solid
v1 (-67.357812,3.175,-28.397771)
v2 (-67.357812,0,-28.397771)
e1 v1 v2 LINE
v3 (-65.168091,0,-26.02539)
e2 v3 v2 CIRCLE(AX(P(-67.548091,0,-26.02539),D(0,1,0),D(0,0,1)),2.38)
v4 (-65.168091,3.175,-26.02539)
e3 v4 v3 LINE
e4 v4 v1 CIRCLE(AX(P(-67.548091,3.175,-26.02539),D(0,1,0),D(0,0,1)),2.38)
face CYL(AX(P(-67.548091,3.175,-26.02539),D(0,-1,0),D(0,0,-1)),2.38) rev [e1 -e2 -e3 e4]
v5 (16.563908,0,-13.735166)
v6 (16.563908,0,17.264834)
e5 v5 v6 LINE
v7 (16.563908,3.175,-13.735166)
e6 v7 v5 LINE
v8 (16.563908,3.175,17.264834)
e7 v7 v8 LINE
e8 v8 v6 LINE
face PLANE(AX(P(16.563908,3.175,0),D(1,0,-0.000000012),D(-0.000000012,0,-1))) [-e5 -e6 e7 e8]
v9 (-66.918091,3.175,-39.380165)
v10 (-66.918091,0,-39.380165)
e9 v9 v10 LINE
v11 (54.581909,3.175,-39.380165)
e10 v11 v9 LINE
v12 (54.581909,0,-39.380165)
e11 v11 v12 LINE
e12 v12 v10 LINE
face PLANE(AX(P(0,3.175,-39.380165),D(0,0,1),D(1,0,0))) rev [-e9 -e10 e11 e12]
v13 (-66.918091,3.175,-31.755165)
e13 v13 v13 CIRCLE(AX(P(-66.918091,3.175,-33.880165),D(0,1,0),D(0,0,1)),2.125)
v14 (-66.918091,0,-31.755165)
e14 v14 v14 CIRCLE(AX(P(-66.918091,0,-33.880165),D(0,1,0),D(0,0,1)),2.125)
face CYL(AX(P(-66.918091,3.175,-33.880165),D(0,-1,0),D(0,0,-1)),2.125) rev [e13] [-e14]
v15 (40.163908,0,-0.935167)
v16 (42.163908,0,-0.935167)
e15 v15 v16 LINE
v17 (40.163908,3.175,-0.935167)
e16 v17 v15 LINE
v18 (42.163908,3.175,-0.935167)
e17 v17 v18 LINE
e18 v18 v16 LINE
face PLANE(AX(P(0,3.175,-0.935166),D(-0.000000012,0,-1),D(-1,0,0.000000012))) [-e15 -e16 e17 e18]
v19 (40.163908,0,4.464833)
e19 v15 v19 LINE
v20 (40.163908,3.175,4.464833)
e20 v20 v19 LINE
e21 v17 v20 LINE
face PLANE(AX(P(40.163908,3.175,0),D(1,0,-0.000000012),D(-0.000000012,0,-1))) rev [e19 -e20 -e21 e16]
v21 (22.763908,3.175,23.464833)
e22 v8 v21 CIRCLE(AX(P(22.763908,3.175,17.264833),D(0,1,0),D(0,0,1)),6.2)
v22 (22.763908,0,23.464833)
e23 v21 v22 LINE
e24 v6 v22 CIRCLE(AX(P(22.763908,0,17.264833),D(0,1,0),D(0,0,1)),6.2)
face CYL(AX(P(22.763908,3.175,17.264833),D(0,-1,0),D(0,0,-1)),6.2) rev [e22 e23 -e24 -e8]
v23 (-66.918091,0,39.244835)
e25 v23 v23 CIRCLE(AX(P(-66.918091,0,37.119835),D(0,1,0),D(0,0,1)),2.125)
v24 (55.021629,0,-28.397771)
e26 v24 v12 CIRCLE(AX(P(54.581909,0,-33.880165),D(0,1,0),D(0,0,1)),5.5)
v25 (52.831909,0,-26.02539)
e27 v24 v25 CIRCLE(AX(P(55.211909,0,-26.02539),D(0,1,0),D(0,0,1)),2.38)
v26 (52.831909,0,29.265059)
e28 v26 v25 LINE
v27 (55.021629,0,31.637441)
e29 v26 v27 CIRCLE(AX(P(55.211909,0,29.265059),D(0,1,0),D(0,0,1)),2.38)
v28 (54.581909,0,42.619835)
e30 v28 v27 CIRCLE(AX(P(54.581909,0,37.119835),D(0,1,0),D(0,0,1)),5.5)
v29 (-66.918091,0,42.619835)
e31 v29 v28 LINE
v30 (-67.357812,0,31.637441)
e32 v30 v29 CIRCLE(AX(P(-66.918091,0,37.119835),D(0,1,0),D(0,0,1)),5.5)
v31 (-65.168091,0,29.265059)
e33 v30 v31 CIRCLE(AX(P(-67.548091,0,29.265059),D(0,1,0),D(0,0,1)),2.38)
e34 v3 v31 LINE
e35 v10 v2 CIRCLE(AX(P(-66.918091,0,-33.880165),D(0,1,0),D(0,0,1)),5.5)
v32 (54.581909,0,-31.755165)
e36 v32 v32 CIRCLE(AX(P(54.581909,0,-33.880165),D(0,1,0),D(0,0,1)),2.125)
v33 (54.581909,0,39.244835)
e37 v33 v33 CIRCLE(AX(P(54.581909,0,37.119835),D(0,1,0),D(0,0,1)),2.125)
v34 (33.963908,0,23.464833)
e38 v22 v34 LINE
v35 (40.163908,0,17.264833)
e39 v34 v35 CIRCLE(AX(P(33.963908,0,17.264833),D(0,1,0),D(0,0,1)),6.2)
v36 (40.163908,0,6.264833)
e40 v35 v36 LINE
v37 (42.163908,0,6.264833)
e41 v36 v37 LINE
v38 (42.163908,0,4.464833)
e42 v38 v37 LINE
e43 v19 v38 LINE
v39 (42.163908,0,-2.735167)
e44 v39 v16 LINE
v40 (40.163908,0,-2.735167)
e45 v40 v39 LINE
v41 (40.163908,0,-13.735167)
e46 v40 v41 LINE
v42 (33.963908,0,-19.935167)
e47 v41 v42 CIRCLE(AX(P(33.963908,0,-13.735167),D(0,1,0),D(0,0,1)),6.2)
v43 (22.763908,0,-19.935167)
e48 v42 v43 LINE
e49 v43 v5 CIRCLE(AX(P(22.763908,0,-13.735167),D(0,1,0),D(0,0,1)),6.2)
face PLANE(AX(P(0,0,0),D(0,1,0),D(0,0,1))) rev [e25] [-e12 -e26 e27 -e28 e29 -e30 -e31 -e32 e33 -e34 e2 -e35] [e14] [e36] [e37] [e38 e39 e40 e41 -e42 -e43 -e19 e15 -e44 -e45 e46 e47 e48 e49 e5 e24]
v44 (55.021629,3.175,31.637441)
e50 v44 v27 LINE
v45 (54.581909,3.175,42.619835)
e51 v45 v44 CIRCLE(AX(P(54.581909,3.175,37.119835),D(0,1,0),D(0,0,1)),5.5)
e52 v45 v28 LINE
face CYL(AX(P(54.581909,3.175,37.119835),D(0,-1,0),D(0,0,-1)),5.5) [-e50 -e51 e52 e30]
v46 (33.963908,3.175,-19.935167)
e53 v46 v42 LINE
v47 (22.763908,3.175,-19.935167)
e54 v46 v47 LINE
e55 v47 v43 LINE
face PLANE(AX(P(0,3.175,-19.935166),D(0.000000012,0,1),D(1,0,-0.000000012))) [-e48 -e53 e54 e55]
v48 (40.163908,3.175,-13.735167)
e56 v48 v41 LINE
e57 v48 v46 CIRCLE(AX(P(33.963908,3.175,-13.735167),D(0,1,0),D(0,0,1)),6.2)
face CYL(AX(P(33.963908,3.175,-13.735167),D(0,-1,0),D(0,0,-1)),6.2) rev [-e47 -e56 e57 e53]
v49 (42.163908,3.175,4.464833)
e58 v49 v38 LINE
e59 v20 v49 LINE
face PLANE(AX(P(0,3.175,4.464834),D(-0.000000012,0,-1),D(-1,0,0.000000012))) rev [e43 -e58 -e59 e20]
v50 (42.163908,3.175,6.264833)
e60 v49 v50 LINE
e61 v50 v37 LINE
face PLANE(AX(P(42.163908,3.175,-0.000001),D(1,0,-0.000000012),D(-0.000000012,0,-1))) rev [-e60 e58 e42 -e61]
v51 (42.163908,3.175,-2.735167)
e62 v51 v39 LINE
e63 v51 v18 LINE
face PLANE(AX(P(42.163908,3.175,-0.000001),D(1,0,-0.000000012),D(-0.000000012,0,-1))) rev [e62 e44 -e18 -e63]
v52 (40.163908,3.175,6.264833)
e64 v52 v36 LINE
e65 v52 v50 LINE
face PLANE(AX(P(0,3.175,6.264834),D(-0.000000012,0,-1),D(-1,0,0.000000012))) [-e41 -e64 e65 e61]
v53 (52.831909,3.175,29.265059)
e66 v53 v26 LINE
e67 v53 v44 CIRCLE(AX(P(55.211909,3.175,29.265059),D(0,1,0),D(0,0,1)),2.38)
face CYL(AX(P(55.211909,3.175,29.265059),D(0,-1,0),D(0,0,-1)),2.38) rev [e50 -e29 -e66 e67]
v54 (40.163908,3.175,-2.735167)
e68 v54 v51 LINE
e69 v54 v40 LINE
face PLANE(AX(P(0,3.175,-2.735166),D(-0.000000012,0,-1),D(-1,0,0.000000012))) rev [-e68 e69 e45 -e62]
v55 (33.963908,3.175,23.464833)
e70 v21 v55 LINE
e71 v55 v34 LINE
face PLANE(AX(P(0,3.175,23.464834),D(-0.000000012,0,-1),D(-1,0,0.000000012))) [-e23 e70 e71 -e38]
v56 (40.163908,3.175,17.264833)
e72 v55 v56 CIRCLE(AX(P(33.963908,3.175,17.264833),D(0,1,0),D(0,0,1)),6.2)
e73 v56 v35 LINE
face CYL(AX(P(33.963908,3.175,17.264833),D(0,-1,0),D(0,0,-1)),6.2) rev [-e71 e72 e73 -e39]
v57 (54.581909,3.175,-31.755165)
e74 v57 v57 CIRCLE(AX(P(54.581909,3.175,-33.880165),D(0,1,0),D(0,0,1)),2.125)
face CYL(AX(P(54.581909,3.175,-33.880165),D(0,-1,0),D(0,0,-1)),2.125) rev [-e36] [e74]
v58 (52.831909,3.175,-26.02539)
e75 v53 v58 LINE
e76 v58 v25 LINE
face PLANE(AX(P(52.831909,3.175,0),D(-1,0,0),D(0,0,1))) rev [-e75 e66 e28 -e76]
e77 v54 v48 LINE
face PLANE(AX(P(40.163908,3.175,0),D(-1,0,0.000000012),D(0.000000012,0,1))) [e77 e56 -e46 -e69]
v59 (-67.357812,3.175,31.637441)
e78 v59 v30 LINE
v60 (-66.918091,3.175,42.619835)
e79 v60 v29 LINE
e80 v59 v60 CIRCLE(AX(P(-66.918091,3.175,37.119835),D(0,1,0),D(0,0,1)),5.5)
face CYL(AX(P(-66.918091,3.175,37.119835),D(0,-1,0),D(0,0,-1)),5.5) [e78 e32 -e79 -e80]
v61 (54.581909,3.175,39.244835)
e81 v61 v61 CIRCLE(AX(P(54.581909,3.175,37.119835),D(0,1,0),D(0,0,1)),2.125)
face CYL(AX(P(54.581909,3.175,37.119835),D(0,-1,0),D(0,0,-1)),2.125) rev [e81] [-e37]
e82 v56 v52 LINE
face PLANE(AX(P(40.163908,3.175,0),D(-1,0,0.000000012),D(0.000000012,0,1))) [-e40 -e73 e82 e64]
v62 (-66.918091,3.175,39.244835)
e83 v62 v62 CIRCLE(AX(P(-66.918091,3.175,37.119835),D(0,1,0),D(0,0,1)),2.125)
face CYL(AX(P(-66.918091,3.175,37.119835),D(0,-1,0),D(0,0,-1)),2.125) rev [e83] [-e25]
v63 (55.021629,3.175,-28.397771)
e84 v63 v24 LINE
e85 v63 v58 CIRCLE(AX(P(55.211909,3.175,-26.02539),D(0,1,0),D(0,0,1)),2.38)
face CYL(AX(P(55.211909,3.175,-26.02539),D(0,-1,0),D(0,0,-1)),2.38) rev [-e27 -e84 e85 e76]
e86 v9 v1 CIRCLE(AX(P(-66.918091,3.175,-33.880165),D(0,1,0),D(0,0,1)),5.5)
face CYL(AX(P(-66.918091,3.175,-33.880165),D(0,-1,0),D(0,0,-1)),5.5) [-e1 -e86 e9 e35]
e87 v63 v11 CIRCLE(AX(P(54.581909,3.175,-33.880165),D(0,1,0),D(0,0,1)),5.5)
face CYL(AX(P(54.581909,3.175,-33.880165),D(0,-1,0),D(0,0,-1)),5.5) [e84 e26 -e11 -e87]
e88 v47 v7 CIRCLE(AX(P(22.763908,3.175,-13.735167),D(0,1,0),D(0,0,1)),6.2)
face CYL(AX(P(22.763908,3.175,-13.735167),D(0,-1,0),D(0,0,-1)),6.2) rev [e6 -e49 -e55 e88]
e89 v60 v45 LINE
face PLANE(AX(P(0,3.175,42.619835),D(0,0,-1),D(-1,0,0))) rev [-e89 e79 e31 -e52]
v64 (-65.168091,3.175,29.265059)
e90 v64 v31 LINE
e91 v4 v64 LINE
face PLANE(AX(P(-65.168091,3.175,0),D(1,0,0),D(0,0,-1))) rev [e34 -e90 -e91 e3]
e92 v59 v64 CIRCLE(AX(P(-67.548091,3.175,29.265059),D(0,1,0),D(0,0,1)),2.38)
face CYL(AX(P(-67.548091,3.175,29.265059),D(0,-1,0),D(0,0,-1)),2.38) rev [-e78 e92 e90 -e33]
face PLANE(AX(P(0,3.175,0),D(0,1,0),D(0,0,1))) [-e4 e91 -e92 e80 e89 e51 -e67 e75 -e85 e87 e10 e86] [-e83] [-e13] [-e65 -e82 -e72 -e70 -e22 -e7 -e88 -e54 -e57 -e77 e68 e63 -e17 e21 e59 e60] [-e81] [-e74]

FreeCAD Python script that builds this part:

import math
import FreeCAD as App
import Part
import Sketcher

doc = App.newDocument("Part")
body = doc.addObject("PartDesign::Body", "Body")

# Sketch on XZ plane
sketch1 = body.newObject("Sketcher::SketchObject", "Sketch")
sketch1.AttachmentSupport = (doc.getObject("XZ_Plane"), [""])
sketch1.MapMode = "FlatFace"
sketch1.addGeometry([
    Part.LineSegment(App.Vector(52.8, 29.3, 0), App.Vector(52.8, -26, 0)),  # 0
    Part.ArcOfCircle(Part.Circle(App.Vector(55.2, -26, 0), App.Vector(0, 0, 1), 2.4), math.radians(180), math.radians(265)),  # 1
    Part.ArcOfCircle(Part.Circle(App.Vector(54.6, -33.9, 0), App.Vector(0, 0, 1), 5.5), math.radians(-90), math.radians(85)),  # 2
    Part.LineSegment(App.Vector(54.6, -39.4, 0), App.Vector(-66.9, -39.4, 0)),  # 3
    Part.ArcOfCircle(Part.Circle(App.Vector(-66.9, -33.9, 0), App.Vector(0, 0, 1), 5.5), math.radians(95), math.radians(270)),  # 4
    Part.ArcOfCircle(Part.Circle(App.Vector(-67.5, -26, 0), App.Vector(0, 0, 1), 2.4), math.radians(-85), math.radians(0)),  # 5
    Part.LineSegment(App.Vector(-65.2, -26, 0), App.Vector(-65.2, 29.3, 0)),  # 6
    Part.ArcOfCircle(Part.Circle(App.Vector(-67.5, 29.3, 0), App.Vector(0, 0, 1), 2.4), math.radians(0), math.radians(85)),  # 7
    Part.ArcOfCircle(Part.Circle(App.Vector(-66.9, 37.1, 0), App.Vector(0, 0, 1), 5.5), math.radians(90), math.radians(265)),  # 8
    Part.LineSegment(App.Vector(-66.9, 42.6, 0), App.Vector(54.6, 42.6, 0)),  # 9
    Part.ArcOfCircle(Part.Circle(App.Vector(54.6, 37.1, 0), App.Vector(0, 0, 1), 5.5), math.radians(-85), math.radians(90)),  # 10
    Part.ArcOfCircle(Part.Circle(App.Vector(55.2, 29.3, 0), App.Vector(0, 0, 1), 2.4), math.radians(95), math.radians(180)),  # 11
    Part.Circle(App.Vector(-66.9, 37.1, 0), App.Vector(0, 0, 1), 2.1),  # 12
    Part.Circle(App.Vector(54.6, 37.1, 0), App.Vector(0, 0, 1), 2.1),  # 13
    Part.LineSegment(App.Vector(42.2, 6.3, 0), App.Vector(40.2, 6.3, 0)),  # 14
    Part.LineSegment(App.Vector(40.2, 6.3, 0), App.Vector(40.2, 17.3, 0)),  # 15
    Part.ArcOfCircle(Part.Circle(App.Vector(34, 17.3, 0), App.Vector(0, 0, 1), 6.2), math.radians(0), math.radians(90)),  # 16
    Part.LineSegment(App.Vector(34, 23.5, 0), App.Vector(22.8, 23.5, 0)),  # 17
    Part.ArcOfCircle(Part.Circle(App.Vector(22.8, 17.3, 0), App.Vector(0, 0, 1), 6.2), math.radians(90), math.radians(180)),  # 18
    Part.LineSegment(App.Vector(16.6, 17.3, 0), App.Vector(16.6, -13.7, 0)),  # 19
    Part.ArcOfCircle(Part.Circle(App.Vector(22.8, -13.7, 0), App.Vector(0, 0, 1), 6.2), math.radians(180), math.radians(270)),  # 20
    Part.LineSegment(App.Vector(22.8, -19.9, 0), App.Vector(34, -19.9, 0)),  # 21
    Part.ArcOfCircle(Part.Circle(App.Vector(34, -13.7, 0), App.Vector(0, 0, 1), 6.2), math.radians(-90), math.radians(0)),  # 22
    Part.LineSegment(App.Vector(40.2, -13.7, 0), App.Vector(40.2, -2.7, 0)),  # 23
    Part.LineSegment(App.Vector(40.2, -2.7, 0), App.Vector(42.2, -2.7, 0)),  # 24
    Part.LineSegment(App.Vector(42.2, -2.7, 0), App.Vector(42.2, -0.9, 0)),  # 25
    Part.LineSegment(App.Vector(42.2, -0.9, 0), App.Vector(40.2, -0.9, 0)),  # 26
    Part.LineSegment(App.Vector(40.2, -0.9, 0), App.Vector(40.2, 4.5, 0)),  # 27
    Part.LineSegment(App.Vector(40.2, 4.5, 0), App.Vector(42.2, 4.5, 0)),  # 28
    Part.LineSegment(App.Vector(42.2, 4.5, 0), App.Vector(42.2, 6.3, 0)),  # 29
    Part.Circle(App.Vector(-66.9, -33.9, 0), App.Vector(0, 0, 1), 2.1),  # 30
    Part.Circle(App.Vector(54.6, -33.9, 0), App.Vector(0, 0, 1), 2.1),  # 31
], False)
sketch1.addConstraint([
    Sketcher.Constraint("Tangent", 0, 2, 1, 1),
    Sketcher.Constraint("Tangent", 1, 2, 2, 2),
    Sketcher.Constraint("Tangent", 2, 1, 3, 1),
    Sketcher.Constraint("Tangent", 3, 2, 4, 2),
    Sketcher.Constraint("Tangent", 4, 1, 5, 1),
    Sketcher.Constraint("Tangent", 5, 2, 6, 1),
    Sketcher.Constraint("Tangent", 6, 2, 7, 1),
    Sketcher.Constraint("Tangent", 7, 2, 8, 2),
    Sketcher.Constraint("Tangent", 8, 1, 9, 1),
    Sketcher.Constraint("Tangent", 9, 2, 10, 2),
    Sketcher.Constraint("Tangent", 10, 1, 11, 1),
    Sketcher.Constraint("Tangent", 11, 2, 0, 1),
    Sketcher.Constraint("Coincident", 14, 2, 15, 1),
    Sketcher.Constraint("Tangent", 15, 2, 16, 1),
    Sketcher.Constraint("Tangent", 16, 2, 17, 1),
    Sketcher.Constraint("Tangent", 17, 2, 18, 1),
    Sketcher.Constraint("Tangent", 18, 2, 19, 1),
    Sketcher.Constraint("Tangent", 19, 2, 20, 1),
    Sketcher.Constraint("Tangent", 20, 2, 21, 1),
    Sketcher.Constraint("Tangent", 21, 2, 22, 1),
    Sketcher.Constraint("Tangent", 22, 2, 23, 1),
    Sketcher.Constraint("Coincident", 23, 2, 24, 1),
    Sketcher.Constraint("Coincident", 24, 2, 25, 1),
    Sketcher.Constraint("Coincident", 25, 2, 26, 1),
    Sketcher.Constraint("Coincident", 26, 2, 27, 1),
    Sketcher.Constraint("Coincident", 27, 2, 28, 1),
    Sketcher.Constraint("Coincident", 28, 2, 29, 1),
    Sketcher.Constraint("Coincident", 29, 2, 14, 1),
    Sketcher.Constraint("Vertical", 0),
    Sketcher.Constraint("Horizontal", 3),
    Sketcher.Constraint("Vertical", 6),
    Sketcher.Constraint("Horizontal", 9),
    Sketcher.Constraint("Horizontal", 14),
    Sketcher.Constraint("Vertical", 15),
    Sketcher.Constraint("Horizontal", 17),
    Sketcher.Constraint("Vertical", 19),
    Sketcher.Constraint("Horizontal", 21),
    Sketcher.Constraint("Vertical", 23),
    Sketcher.Constraint("Horizontal", 24),
    Sketcher.Constraint("Vertical", 25),
    Sketcher.Constraint("Horizontal", 26),
    Sketcher.Constraint("Vertical", 27),
    Sketcher.Constraint("Horizontal", 28),
    Sketcher.Constraint("Vertical", 29),
    Sketcher.Constraint("Coincident", 12, 3, 8, 3),
    Sketcher.Constraint("Coincident", 13, 3, 10, 3),
    Sketcher.Constraint("Coincident", 30, 3, 4, 3),
    Sketcher.Constraint("Coincident", 31, 3, 2, 3),
    Sketcher.Constraint("Equal", 2, 4),
    Sketcher.Constraint("Equal", 1, 5),
    Sketcher.Constraint("Equal", 5, 7),
    Sketcher.Constraint("Equal", 4, 8),
    Sketcher.Constraint("Equal", 8, 10),
    Sketcher.Constraint("Equal", 7, 11),
    Sketcher.Constraint("Equal", 12, 13),
    Sketcher.Constraint("Equal", 16, 18),
    Sketcher.Constraint("Equal", 18, 20),
    Sketcher.Constraint("Equal", 20, 22),
    Sketcher.Constraint("Equal", 13, 30),
    Sketcher.Constraint("Equal", 30, 31),
    Sketcher.Constraint("Horizontal", 1, 3, 5, 3),
    Sketcher.Constraint("Horizontal", 7, 3, 11, 3),
    Sketcher.Constraint("Vertical", 4, 3, 8, 3),
    Sketcher.Constraint("Vertical", 16, 3, 22, 3),
    Sketcher.Constraint("Vertical", 23, 2, 26, 2),
    Sketcher.Constraint("Vertical", 25, 2, 28, 2),
    Sketcher.Constraint("Equal", 15, 23),
    Sketcher.Constraint("Equal", 25, 29),
    Sketcher.Constraint("Radius", 2, 5.5),
    Sketcher.Constraint("Radius", 16, 6.2),
    Sketcher.Constraint("Diameter", 12, 4.25),
    Sketcher.Constraint("DistanceX", 14, 2, 14, 1, 2.0),
    Sketcher.Constraint("DistanceY", 15, 1, 15, 2, 11.0),
    Sketcher.Constraint("DistanceY", 19, 2, 19, 1, 31.0),
    Sketcher.Constraint("Radius", 1, 2.38),
    Sketcher.Constraint("DistanceX", 3, 2, 3, 1, 121.5),
    Sketcher.Constraint("DistanceX", 17, 2, 17, 1, 11.2),
    Sketcher.Constraint("DistanceY", 25, 1, 25, 2, 1.8),
    Sketcher.Constraint("DistanceY", 4, 3, 8, 3, 71.0),
    Sketcher.Constraint("DistanceX", 2, 3, 1, 3, 0.63),
    Sketcher.Constraint("DistanceX", 16, 3, 11, 3, 21.248),
    Sketcher.Constraint("DistanceY", 16, 3, 10, 3, 19.855001),
    Sketcher.Constraint("DistanceX", -1, 1, 1, 3, 55.211909),
    Sketcher.Constraint("DistanceY", 1, 3, -1, 1, 26.02539),
])
pad1 = body.newObject("PartDesign::Pad", "Pad")
pad1.Profile = sketch1
pad1.Length = 3.175
pad1.Reversed = True

doc.recompute()
